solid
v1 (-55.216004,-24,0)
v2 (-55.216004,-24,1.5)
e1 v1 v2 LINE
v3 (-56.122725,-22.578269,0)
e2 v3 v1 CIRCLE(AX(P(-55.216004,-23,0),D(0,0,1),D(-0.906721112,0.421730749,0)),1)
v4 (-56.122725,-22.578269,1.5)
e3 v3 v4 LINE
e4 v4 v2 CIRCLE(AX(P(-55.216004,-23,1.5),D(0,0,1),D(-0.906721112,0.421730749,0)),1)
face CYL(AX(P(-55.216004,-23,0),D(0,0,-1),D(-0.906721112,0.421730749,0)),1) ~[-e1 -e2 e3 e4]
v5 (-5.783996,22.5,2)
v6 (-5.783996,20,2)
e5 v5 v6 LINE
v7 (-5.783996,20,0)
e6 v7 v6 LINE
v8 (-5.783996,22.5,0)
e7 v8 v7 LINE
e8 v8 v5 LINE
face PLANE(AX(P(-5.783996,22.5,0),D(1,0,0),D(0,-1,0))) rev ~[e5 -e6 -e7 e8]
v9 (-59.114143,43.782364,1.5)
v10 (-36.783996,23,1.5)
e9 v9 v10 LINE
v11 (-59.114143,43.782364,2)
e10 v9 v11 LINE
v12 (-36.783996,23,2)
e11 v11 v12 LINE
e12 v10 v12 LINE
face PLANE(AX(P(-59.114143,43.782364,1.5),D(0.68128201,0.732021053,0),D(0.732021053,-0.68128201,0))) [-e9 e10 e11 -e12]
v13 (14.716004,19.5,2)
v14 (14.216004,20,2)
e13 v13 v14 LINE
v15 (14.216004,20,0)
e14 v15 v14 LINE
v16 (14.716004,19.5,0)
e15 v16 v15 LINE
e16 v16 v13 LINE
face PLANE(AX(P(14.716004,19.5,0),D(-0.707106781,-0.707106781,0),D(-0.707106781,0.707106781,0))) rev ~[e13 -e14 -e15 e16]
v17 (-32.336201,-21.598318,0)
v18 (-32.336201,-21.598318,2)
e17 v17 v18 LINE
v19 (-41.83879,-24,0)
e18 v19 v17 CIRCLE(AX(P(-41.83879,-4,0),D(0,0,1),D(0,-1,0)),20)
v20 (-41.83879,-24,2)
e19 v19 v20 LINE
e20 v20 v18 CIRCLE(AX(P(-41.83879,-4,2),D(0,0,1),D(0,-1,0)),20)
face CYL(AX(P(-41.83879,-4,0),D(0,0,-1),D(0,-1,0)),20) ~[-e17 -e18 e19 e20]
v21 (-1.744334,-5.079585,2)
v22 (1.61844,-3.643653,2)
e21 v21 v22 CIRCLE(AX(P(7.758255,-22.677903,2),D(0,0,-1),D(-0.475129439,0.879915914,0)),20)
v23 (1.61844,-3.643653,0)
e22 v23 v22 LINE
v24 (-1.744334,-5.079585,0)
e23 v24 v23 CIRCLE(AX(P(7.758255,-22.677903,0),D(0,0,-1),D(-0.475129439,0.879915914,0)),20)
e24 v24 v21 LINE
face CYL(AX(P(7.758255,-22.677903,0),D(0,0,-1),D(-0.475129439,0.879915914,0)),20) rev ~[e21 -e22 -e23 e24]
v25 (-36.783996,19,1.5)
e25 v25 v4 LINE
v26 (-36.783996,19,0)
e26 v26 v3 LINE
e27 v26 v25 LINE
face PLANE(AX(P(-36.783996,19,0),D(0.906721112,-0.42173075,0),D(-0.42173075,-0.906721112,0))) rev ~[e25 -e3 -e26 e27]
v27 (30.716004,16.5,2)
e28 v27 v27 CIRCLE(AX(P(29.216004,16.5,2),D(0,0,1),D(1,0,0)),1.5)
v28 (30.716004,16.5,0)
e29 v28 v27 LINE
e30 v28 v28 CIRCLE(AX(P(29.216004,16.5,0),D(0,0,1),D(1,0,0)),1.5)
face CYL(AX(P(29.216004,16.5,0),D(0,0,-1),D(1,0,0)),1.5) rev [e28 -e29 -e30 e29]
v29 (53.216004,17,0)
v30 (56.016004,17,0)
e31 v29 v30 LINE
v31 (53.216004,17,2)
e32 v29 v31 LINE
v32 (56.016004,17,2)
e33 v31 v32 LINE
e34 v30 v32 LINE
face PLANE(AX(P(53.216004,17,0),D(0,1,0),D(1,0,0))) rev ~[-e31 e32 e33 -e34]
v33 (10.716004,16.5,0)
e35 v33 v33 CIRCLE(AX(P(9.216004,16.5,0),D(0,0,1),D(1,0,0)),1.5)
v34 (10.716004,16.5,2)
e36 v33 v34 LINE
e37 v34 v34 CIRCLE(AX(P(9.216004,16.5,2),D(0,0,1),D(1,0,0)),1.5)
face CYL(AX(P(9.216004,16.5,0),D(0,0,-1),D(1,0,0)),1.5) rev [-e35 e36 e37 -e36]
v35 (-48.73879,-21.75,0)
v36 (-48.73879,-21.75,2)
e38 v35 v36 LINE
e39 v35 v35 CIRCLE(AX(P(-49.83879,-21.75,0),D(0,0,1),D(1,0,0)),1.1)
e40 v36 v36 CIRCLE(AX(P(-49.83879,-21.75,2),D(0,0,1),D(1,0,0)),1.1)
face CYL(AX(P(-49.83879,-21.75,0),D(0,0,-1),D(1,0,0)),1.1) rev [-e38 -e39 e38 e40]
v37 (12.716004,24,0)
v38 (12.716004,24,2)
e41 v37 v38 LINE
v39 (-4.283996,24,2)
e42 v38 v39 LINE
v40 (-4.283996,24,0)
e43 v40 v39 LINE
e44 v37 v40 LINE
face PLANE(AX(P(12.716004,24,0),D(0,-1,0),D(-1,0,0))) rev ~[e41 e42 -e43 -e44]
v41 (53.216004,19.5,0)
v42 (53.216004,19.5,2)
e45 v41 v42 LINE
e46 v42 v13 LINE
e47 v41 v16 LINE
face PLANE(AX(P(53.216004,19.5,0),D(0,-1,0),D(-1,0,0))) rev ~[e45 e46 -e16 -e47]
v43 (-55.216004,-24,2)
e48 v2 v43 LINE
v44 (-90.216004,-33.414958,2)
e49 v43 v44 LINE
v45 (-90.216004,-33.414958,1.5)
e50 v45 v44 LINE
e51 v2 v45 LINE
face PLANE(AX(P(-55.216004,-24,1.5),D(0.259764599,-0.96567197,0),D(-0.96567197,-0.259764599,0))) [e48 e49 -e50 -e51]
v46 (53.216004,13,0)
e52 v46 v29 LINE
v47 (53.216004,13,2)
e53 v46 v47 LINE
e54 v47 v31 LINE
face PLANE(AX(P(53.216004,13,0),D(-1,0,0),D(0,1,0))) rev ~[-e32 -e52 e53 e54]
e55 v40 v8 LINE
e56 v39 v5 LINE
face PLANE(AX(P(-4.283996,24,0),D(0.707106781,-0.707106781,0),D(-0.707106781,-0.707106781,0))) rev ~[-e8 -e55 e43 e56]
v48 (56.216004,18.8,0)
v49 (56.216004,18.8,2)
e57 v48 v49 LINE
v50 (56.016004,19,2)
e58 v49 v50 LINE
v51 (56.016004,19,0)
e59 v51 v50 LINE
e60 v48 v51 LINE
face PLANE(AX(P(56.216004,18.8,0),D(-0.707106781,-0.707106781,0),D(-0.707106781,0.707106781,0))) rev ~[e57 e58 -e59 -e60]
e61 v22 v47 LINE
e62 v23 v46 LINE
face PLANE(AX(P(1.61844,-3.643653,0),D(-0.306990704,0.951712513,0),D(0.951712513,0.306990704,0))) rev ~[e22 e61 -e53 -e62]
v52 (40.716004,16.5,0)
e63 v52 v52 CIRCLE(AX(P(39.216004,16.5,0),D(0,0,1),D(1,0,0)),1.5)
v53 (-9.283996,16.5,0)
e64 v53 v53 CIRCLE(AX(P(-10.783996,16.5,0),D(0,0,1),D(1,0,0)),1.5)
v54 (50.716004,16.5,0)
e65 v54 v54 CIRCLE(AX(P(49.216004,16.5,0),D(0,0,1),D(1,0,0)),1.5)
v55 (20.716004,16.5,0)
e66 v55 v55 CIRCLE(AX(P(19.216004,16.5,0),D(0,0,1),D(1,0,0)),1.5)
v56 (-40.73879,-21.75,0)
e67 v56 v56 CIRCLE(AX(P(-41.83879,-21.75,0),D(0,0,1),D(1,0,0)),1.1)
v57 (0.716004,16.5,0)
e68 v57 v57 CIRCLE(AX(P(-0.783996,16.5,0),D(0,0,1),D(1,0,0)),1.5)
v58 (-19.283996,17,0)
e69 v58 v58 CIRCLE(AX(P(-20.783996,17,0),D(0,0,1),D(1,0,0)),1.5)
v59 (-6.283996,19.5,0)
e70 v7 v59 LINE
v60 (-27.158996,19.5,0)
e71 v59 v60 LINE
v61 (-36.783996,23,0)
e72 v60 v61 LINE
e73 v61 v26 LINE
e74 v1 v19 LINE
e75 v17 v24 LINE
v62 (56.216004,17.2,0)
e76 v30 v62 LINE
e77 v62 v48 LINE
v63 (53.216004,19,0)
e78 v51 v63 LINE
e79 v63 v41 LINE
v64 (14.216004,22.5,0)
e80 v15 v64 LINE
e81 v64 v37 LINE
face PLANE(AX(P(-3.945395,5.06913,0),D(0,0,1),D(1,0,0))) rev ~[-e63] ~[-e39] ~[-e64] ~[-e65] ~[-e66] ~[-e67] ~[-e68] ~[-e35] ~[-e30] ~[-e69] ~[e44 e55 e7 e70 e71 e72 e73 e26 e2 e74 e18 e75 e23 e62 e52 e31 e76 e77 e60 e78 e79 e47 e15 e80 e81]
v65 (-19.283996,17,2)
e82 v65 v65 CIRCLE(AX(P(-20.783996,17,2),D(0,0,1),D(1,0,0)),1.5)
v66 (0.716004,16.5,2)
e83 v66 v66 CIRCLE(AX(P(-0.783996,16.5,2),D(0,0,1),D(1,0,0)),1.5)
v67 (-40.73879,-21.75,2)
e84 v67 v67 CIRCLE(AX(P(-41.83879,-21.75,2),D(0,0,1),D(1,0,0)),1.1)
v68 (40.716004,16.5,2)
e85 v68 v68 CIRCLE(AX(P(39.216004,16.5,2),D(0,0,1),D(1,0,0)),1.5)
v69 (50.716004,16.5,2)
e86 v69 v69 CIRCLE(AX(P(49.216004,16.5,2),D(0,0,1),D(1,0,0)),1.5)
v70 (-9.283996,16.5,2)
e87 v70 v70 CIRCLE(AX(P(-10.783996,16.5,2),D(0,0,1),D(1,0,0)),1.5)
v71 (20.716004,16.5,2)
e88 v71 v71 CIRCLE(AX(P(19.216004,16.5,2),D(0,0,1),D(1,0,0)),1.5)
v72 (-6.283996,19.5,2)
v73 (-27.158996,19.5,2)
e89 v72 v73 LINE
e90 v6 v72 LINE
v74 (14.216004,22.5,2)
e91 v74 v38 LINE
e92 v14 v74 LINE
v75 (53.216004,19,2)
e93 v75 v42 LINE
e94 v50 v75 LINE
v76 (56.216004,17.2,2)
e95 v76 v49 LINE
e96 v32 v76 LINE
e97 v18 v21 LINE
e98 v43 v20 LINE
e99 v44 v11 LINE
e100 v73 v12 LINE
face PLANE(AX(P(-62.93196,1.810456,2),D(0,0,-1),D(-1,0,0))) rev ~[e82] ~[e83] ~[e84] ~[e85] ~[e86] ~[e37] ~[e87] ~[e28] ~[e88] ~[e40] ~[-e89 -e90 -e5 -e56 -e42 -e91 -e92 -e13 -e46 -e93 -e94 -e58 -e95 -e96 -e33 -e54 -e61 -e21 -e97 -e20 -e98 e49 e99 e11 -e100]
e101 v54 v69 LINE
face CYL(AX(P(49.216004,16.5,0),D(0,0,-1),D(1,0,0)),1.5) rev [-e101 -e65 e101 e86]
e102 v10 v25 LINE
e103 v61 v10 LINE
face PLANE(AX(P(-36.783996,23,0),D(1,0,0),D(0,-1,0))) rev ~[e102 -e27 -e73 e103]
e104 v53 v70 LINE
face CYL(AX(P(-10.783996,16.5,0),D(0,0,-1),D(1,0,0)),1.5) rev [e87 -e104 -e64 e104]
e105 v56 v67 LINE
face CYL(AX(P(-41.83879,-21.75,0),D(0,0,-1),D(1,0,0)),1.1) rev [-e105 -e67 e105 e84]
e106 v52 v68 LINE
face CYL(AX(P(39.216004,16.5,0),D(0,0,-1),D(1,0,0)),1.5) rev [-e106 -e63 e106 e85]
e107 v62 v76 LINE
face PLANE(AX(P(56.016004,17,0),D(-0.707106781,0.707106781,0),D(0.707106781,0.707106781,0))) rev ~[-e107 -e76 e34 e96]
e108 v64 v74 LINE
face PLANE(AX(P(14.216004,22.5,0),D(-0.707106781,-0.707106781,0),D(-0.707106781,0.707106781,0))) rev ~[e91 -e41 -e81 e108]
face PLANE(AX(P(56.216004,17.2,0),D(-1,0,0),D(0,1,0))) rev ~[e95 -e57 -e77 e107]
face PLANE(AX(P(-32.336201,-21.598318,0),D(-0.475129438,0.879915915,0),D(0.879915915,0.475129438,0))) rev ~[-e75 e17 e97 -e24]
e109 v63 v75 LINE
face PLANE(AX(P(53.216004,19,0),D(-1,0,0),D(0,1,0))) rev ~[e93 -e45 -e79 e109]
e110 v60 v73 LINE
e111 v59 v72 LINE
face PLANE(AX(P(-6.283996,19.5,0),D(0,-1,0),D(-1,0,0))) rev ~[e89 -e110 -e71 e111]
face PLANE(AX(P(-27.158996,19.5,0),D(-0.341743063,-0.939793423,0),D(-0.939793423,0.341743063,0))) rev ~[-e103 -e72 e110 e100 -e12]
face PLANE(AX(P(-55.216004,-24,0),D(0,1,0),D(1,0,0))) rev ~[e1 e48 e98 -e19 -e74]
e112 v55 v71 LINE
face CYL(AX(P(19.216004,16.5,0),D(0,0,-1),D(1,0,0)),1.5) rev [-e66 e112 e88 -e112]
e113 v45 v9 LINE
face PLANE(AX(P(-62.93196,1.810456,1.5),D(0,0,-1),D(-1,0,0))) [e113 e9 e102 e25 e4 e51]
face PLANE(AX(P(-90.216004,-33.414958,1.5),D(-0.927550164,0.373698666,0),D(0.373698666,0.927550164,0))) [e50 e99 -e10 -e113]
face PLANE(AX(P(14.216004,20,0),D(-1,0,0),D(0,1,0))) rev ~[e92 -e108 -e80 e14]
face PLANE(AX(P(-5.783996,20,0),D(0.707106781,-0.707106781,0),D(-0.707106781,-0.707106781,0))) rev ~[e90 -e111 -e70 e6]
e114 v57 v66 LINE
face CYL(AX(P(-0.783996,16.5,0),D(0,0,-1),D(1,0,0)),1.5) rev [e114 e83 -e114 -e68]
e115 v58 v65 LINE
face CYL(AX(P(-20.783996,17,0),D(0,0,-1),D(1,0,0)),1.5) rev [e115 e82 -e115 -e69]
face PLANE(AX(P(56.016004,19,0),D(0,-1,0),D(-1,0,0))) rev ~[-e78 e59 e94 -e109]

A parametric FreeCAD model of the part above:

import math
import FreeCAD as App
import Part
import Sketcher
from FreeCAD import Vector

doc = App.newDocument("Part")
body = doc.addObject("PartDesign::Body", "Body")

# Sketch on XY plane
sketch1 = body.newObject("Sketcher::SketchObject", "Sketch")
sketch1.AttachmentSupport = (doc.getObject("XY_Plane"), [""])
sketch1.MapMode = "FlatFace"
sketch1.addGeometry(Part.LineSegment(Vector(56.02, 19, 0), Vector(53.22, 19, 0)), False)
sketch1.addGeometry(Part.LineSegment(Vector(53.22, 19, 0), Vector(53.22, 19.5, 0)), False)
sketch1.addGeometry(Part.LineSegment(Vector(53.22, 19.5, 0), Vector(14.72, 19.5, 0)), False)
sketch1.addGeometry(Part.LineSegment(Vector(14.72, 19.5, 0), Vector(14.22, 20, 0)), False)
sketch1.addGeometry(Part.LineSegment(Vector(14.22, 20, 0), Vector(14.22, 22.5, 0)), False)
sketch1.addGeometry(Part.LineSegment(Vector(14.22, 22.5, 0), Vector(12.72, 24, 0)), False)
sketch1.addGeometry(Part.LineSegment(Vector(12.72, 24, 0), Vector(-4.28, 24, 0)), False)
sketch1.addGeometry(Part.LineSegment(Vector(-4.28, 24, 0), Vector(-5.78, 22.5, 0)), False)
sketch1.addGeometry(Part.LineSegment(Vector(-5.78, 22.5, 0), Vector(-5.78, 20, 0)), False)
sketch1.addGeometry(Part.LineSegment(Vector(-5.78, 20, 0), Vector(-6.28, 19.5, 0)), False)
sketch1.addGeometry(Part.LineSegment(Vector(-6.28, 19.5, 0), Vector(-27.16, 19.5, 0)), False)
sketch1.addGeometry(Part.LineSegment(Vector(-27.16, 19.5, 0), Vector(-36.78, 23, 0)), False)
sketch1.addGeometry(Part.LineSegment(Vector(-36.78, 23, 0), Vector(-36.78, 19, 0)), False)
sketch1.addGeometry(Part.LineSegment(Vector(-36.78, 19, 0), Vector(-56.12, -22.58, 0)), False)
sketch1.addGeometry(Part.ArcOfCircle(Part.Circle(Vector(-55.22, -23, 0), Vector(0, 0, 1), 1), math.radians(155), math.radians(270)), False)
sketch1.addGeometry(Part.LineSegment(Vector(-55.22, -24, 0), Vector(-41.84, -24, 0)), False)
sketch1.addGeometry(Part.ArcOfCircle(Part.Circle(Vector(-41.84, -4, 0), Vector(0, 0, 1), 20), math.radians(-90), math.radians(-62)), False)
sketch1.addGeometry(Part.LineSegment(Vector(-32.34, -21.6, 0), Vector(-1.74, -5.08, 0)), False)
sketch1.addGeometry(Part.ArcOfCircle(Part.Circle(Vector(7.76, -22.68, 0), Vector(0, 0, 1), 20), math.radians(107.88), math.radians(118.37)), False)
sketch1.addGeometry(Part.LineSegment(Vector(1.62, -3.64, 0), Vector(53.22, 13, 0)), False)
sketch1.addGeometry(Part.LineSegment(Vector(53.22, 13, 0), Vector(53.22, 17, 0)), False)
sketch1.addGeometry(Part.LineSegment(Vector(53.22, 17, 0), Vector(56.02, 17, 0)), False)
sketch1.addGeometry(Part.LineSegment(Vector(56.02, 17, 0), Vector(56.22, 17.2, 0)), False)
sketch1.addGeometry(Part.LineSegment(Vector(56.22, 17.2, 0), Vector(56.22, 18.8, 0)), False)
sketch1.addGeometry(Part.LineSegment(Vector(56.22, 18.8, 0), Vector(56.02, 19, 0)), False)
sketch1.addGeometry(Part.Circle(Vector(-49.84, -21.75, 0), Vector(0, 0, 1), 1.1), False)
sketch1.addGeometry(Part.Circle(Vector(-41.84, -21.75, 0), Vector(0, 0, 1), 1.1), False)
sketch1.addGeometry(Part.Circle(Vector(-20.78, 17, 0), Vector(0, 0, 1), 1.5), False)
sketch1.addGeometry(Part.Circle(Vector(-10.78, 16.5, 0), Vector(0, 0, 1), 1.5), False)
sketch1.addGeometry(Part.Circle(Vector(-0.78, 16.5, 0), Vector(0, 0, 1), 1.5), False)
sketch1.addGeometry(Part.Circle(Vector(9.22, 16.5, 0), Vector(0, 0, 1), 1.5), False)
sketch1.addGeometry(Part.Circle(Vector(19.22, 16.5, 0), Vector(0, 0, 1), 1.5), False)
sketch1.addGeometry(Part.Circle(Vector(29.22, 16.5, 0), Vector(0, 0, 1), 1.5), False)
sketch1.addGeometry(Part.Circle(Vector(39.22, 16.5, 0), Vector(0, 0, 1), 1.5), False)
sketch1.addGeometry(Part.Circle(Vector(49.22, 16.5, 0), Vector(0, 0, 1), 1.5), False)
sketch1.addConstraint(Sketcher.Constraint("Coincident", 0, 2, 1, 1))
sketch1.addConstraint(Sketcher.Constraint("Coincident", 1, 2, 2, 1))
sketch1.addConstraint(Sketcher.Constraint("Coincident", 2, 2, 3, 1))
sketch1.addConstraint(Sketcher.Constraint("Coincident", 3, 2, 4, 1))
sketch1.addConstraint(Sketcher.Constraint("Coincident", 4, 2, 5, 1))
sketch1.addConstraint(Sketcher.Constraint("Coincident", 5, 2, 6, 1))
sketch1.addConstraint(Sketcher.Constraint("Coincident", 6, 2, 7, 1))
sketch1.addConstraint(Sketcher.Constraint("Coincident", 7, 2, 8, 1))
sketch1.addConstraint(Sketcher.Constraint("Coincident", 8, 2, 9, 1))
sketch1.addConstraint(Sketcher.Constraint("Coincident", 9, 2, 10, 1))
sketch1.addConstraint(Sketcher.Constraint("Coincident", 10, 2, 11, 1))
sketch1.addConstraint(Sketcher.Constraint("Coincident", 11, 2, 12, 1))
sketch1.addConstraint(Sketcher.Constraint("Coincident", 12, 2, 13, 1))
sketch1.addConstraint(Sketcher.Constraint("Tangent", 13, 2, 14, 1))
sketch1.addConstraint(Sketcher.Constraint("Tangent", 14, 2, 15, 1))
sketch1.addConstraint(Sketcher.Constraint("Tangent", 15, 2, 16, 1))
sketch1.addConstraint(Sketcher.Constraint("Tangent", 16, 2, 17, 1))
sketch1.addConstraint(Sketcher.Constraint("Tangent", 17, 2, 18, 2))
sketch1.addConstraint(Sketcher.Constraint("Tangent", 18, 1, 19, 1))
sketch1.addConstraint(Sketcher.Constraint("Coincident", 19, 2, 20, 1))
sketch1.addConstraint(Sketcher.Constraint("Coincident", 20, 2, 21, 1))
sketch1.addConstraint(Sketcher.Constraint("Coincident", 21, 2, 22, 1))
sketch1.addConstraint(Sketcher.Constraint("Coincident", 22, 2, 23, 1))
sketch1.addConstraint(Sketcher.Constraint("Coincident", 23, 2, 24, 1))
sketch1.addConstraint(Sketcher.Constraint("Coincident", 24, 2, 0, 1))
sketch1.addConstraint(Sketcher.Constraint("Horizontal", 0))
sketch1.addConstraint(Sketcher.Constraint("Vertical", 1))
sketch1.addConstraint(Sketcher.Constraint("Horizontal", 2))
sketch1.addConstraint(Sketcher.Constraint("Vertical", 4))
sketch1.addConstraint(Sketcher.Constraint("Horizontal", 6))
sketch1.addConstraint(Sketcher.Constraint("Vertical", 8))
sketch1.addConstraint(Sketcher.Constraint("Horizontal", 10))
sketch1.addConstraint(Sketcher.Constraint("Vertical", 12))
sketch1.addConstraint(Sketcher.Constraint("Horizontal", 15))
sketch1.addConstraint(Sketcher.Constraint("Vertical", 20))
sketch1.addConstraint(Sketcher.Constraint("Horizontal", 21))
sketch1.addConstraint(Sketcher.Constraint("Vertical", 23))
sketch1.addConstraint(Sketcher.Constraint("Equal", 16, 18))
sketch1.addConstraint(Sketcher.Constraint("Equal", 25, 26))
sketch1.addConstraint(Sketcher.Constraint("Equal", 27, 28))
sketch1.addConstraint(Sketcher.Constraint("Equal", 28, 29))
sketch1.addConstraint(Sketcher.Constraint("Equal", 29, 30))
sketch1.addConstraint(Sketcher.Constraint("Equal", 30, 31))
sketch1.addConstraint(Sketcher.Constraint("Equal", 31, 32))
sketch1.addConstraint(Sketcher.Constraint("Equal", 32, 33))
sketch1.addConstraint(Sketcher.Constraint("Equal", 33, 34))
sketch1.addConstraint(Sketcher.Constraint("Parallel", 3, 5))
sketch1.addConstraint(Sketcher.Constraint("Perpendicular", 5, 7))
sketch1.addConstraint(Sketcher.Constraint("Parallel", 7, 9))
sketch1.addConstraint(Sketcher.Constraint("Parallel", 9, 22))
sketch1.addConstraint(Sketcher.Constraint("Perpendicular", 22, 24))
sketch1.addConstraint(Sketcher.Constraint("Horizontal", 25, 3, 26, 3))
sketch1.addConstraint(Sketcher.Constraint("Horizontal", 28, 3, 29, 3))
sketch1.addConstraint(Sketcher.Constraint("Horizontal", 29, 3, 30, 3))
sketch1.addConstraint(Sketcher.Constraint("Horizontal", 30, 3, 31, 3))
sketch1.addConstraint(Sketcher.Constraint("Horizontal", 31, 3, 32, 3))
sketch1.addConstraint(Sketcher.Constraint("Horizontal", 32, 3, 33, 3))
sketch1.addConstraint(Sketcher.Constraint("Horizontal", 33, 3, 34, 3))
sketch1.addConstraint(Sketcher.Constraint("Horizontal", 4, 2, 7, 2))
sketch1.addConstraint(Sketcher.Constraint("Horizontal", 3, 2, 8, 2))
sketch1.addConstraint(Sketcher.Constraint("Horizontal", 2, 2, 9, 2))
sketch1.addConstraint(Sketcher.Constraint("Horizontal", 0, 2, 12, 2))
sketch1.addConstraint(Sketcher.Constraint("Horizontal", 27, 3, 20, 2))
sketch1.addConstraint(Sketcher.Constraint("Vertical", 16, 3, 26, 3))
sketch1.addConstraint(Sketcher.Constraint("Vertical", 1, 2, 19, 2))
sketch1.addConstraint(Sketcher.Constraint("Vertical", 21, 2, 24, 2))
sketch1.addConstraint(Sketcher.Constraint("Equal", 12, 20))
sketch1.addConstraint(Sketcher.Constraint("Equal", 5, 7))
sketch1.addConstraint(Sketcher.Constraint("Diameter", 27, 3.0))
sketch1.addConstraint(Sketcher.Constraint("Radius", 14, 1.0))
sketch1.addConstraint(Sketcher.Constraint("Radius", 16, 20.0))
sketch1.addConstraint(Sketcher.Constraint("Diameter", 25, 2.2))
sketch1.addConstraint(Sketcher.Constraint("DistanceX", 6, 2, 6, 1, 17.0))
sketch1.addConstraint(Sketcher.Constraint("DistanceY", 12, 2, 12, 1, 4.0))
sketch1.addConstraint(Sketcher.Constraint("DistanceX", 0, 2, 0, 1, 2.8))
sketch1.addConstraint(Sketcher.Constraint("DistanceX", 2, 2, 2, 1, 38.5))
sketch1.addConstraint(Sketcher.Constraint("DistanceY", 1, 1, 1, 2, 0.5))
sketch1.addConstraint(Sketcher.Constraint("DistanceY", 4, 1, 4, 2, 2.5))
sketch1.addConstraint(Sketcher.Constraint("DistanceY", 23, 1, 23, 2, 1.6))
sketch1.addConstraint(Sketcher.Constraint("DistanceY", 14, 3, -1, 1, 23.0))
sketch1.addConstraint(Sketcher.Constraint("DistanceY", -1, 1, 27, 3, 17.0))
sketch1.addConstraint(Sketcher.Constraint("DistanceY", -1, 1, 0, 2, 19.0))
sketch1.addConstraint(Sketcher.Constraint("DistanceY", -1, 1, 3, 2, 20.0))
sketch1.addConstraint(Sketcher.Constraint("DistanceY", -1, 1, 5, 2, 24.0))
sketch1.addConstraint(Sketcher.Constraint("DistanceX", 25, 3, 16, 3, 8.0))
sketch1.addConstraint(Sketcher.Constraint("DistanceX", 27, 3, 28, 3, 10.0))
sketch1.addConstraint(Sketcher.Constraint("DistanceX", 28, 3, 29, 3, 10.0))
sketch1.addConstraint(Sketcher.Constraint("DistanceX", 29, 3, 30, 3, 10.0))
sketch1.addConstraint(Sketcher.Constraint("DistanceX", 30, 3, 31, 3, 10.0))
sketch1.addConstraint(Sketcher.Constraint("DistanceX", 31, 3, 32, 3, 10.0))
sketch1.addConstraint(Sketcher.Constraint("DistanceX", 32, 3, 33, 3, 10.0))
sketch1.addConstraint(Sketcher.Constraint("DistanceX", 33, 3, 34, 3, 10.0))
sketch1.addConstraint(Sketcher.Constraint("DistanceX", 34, 3, 0, 2, 4.0))
sketch1.addConstraint(Sketcher.Constraint("DistanceY", 34, 3, 1, 2, 3.0))
sketch1.addConstraint(Sketcher.Constraint("DistanceX", 11, 2, 27, 3, 16.0))
sketch1.addConstraint(Sketcher.Constraint("DistanceX", 10, 2, 10, 1, 20.875))
sketch1.addConstraint(Sketcher.Constraint("DistanceY", 25, 3, -1, 1, 21.75))
sketch1.addConstraint(Sketcher.Constraint("DistanceX", 16, 2, -1, 1, 32.336201))
sketch1.addConstraint(Sketcher.Constraint("Distance", 13, 45.855632))
sketch1.addConstraint(Sketcher.Constraint("DistanceX", 15, 1, 15, 2, 13.377214))
sketch1.addConstraint(Sketcher.Constraint("DistanceX", 16, 3, -1, 1, 41.83879))
sketch1.addConstraint(Sketcher.Constraint("DistanceX", -1, 1, 18, 1, 1.61844))
pad1 = body.newObject("PartDesign::Pad", "Pad")
pad1.Profile = sketch1
pad1.Length = 2

# Sketch on XY plane
sketch2 = body.newObject("Sketcher::SketchObject", "Sketch001")
sketch2.AttachmentSupport = (doc.getObject("XY_Plane"), [""])
sketch2.MapMode = "FlatFace"
sketch2.AttachmentOffset = App.Placement(Vector(0, 0, 1.5), App.Rotation())
sketch2.addGeometry(Part.LineSegment(Vector(-90.2, -33.4, 0), Vector(-55.2, -24, 0)), False)
sketch2.addGeometry(Part.ArcOfCircle(Part.Circle(Vector(-55.2, -23, 0), Vector(0, 0, 1), 1), math.radians(155), math.radians(270)), False)
sketch2.addGeometry(Part.LineSegment(Vector(-56.1, -22.6, 0), Vector(-36.8, 19, 0)), False)
sketch2.addGeometry(Part.LineSegment(Vector(-36.8, 19, 0), Vector(-36.8, 23, 0)), False)
sketch2.addGeometry(Part.LineSegment(Vector(-36.8, 23, 0), Vector(-59.1, 43.8, 0)), False)
sketch2.addGeometry(Part.LineSegment(Vector(-59.1, 43.8, 0), Vector(-90.2, -33.4, 0)), False)
sketch2.addConstraint(Sketcher.Constraint("Coincident", 0, 2, 1, 2))
sketch2.addConstraint(Sketcher.Constraint("Tangent", 1, 1, 2, 1))
sketch2.addConstraint(Sketcher.Constraint("Coincident", 2, 2, 3, 1))
sketch2.addConstraint(Sketcher.Constraint("Coincident", 3, 2, 4, 1))
sketch2.addConstraint(Sketcher.Constraint("Coincident", 4, 2, 5, 1))
sketch2.addConstraint(Sketcher.Constraint("Coincident", 5, 2, 0, 1))
sketch2.addConstraint(Sketcher.Constraint("Vertical", 3))
sketch2.addConstraint(Sketcher.Constraint("Vertical", 1, 3, 0, 2))
sketch2.addConstraint(Sketcher.Constraint("Radius", 1, 1.0))
sketch2.addConstraint(Sketcher.Constraint("DistanceY", 3, 1, 3, 2, 4.0))
sketch2.addConstraint(Sketcher.Constraint("DistanceY", 1, 3, -1, 1, 23.0))
sketch2.addConstraint(Sketcher.Constraint("DistanceY", -1, 1, 2, 2, 19.0))
sketch2.addConstraint(Sketcher.Constraint("DistanceX", 5, 2, 0, 2, 35.0))
sketch2.addConstraint(Sketcher.Constraint("Distance", 0, 36.244192))
sketch2.addConstraint(Sketcher.Constraint("Distance", 2, 45.855632))
sketch2.addConstraint(Sketcher.Constraint("Distance", 4, 30.504789))
sketch2.addConstraint(Sketcher.Constraint("DistanceX", 4, 2, 1, 3, 3.898139))
sketch2.addConstraint(Sketcher.Constraint("DistanceX", 1, 3, -1, 1, 55.216004))
pad2 = body.newObject("PartDesign::Pad", "Pad001")
pad2.Profile = sketch2
pad2.Length = 0.5

doc.recompute()
